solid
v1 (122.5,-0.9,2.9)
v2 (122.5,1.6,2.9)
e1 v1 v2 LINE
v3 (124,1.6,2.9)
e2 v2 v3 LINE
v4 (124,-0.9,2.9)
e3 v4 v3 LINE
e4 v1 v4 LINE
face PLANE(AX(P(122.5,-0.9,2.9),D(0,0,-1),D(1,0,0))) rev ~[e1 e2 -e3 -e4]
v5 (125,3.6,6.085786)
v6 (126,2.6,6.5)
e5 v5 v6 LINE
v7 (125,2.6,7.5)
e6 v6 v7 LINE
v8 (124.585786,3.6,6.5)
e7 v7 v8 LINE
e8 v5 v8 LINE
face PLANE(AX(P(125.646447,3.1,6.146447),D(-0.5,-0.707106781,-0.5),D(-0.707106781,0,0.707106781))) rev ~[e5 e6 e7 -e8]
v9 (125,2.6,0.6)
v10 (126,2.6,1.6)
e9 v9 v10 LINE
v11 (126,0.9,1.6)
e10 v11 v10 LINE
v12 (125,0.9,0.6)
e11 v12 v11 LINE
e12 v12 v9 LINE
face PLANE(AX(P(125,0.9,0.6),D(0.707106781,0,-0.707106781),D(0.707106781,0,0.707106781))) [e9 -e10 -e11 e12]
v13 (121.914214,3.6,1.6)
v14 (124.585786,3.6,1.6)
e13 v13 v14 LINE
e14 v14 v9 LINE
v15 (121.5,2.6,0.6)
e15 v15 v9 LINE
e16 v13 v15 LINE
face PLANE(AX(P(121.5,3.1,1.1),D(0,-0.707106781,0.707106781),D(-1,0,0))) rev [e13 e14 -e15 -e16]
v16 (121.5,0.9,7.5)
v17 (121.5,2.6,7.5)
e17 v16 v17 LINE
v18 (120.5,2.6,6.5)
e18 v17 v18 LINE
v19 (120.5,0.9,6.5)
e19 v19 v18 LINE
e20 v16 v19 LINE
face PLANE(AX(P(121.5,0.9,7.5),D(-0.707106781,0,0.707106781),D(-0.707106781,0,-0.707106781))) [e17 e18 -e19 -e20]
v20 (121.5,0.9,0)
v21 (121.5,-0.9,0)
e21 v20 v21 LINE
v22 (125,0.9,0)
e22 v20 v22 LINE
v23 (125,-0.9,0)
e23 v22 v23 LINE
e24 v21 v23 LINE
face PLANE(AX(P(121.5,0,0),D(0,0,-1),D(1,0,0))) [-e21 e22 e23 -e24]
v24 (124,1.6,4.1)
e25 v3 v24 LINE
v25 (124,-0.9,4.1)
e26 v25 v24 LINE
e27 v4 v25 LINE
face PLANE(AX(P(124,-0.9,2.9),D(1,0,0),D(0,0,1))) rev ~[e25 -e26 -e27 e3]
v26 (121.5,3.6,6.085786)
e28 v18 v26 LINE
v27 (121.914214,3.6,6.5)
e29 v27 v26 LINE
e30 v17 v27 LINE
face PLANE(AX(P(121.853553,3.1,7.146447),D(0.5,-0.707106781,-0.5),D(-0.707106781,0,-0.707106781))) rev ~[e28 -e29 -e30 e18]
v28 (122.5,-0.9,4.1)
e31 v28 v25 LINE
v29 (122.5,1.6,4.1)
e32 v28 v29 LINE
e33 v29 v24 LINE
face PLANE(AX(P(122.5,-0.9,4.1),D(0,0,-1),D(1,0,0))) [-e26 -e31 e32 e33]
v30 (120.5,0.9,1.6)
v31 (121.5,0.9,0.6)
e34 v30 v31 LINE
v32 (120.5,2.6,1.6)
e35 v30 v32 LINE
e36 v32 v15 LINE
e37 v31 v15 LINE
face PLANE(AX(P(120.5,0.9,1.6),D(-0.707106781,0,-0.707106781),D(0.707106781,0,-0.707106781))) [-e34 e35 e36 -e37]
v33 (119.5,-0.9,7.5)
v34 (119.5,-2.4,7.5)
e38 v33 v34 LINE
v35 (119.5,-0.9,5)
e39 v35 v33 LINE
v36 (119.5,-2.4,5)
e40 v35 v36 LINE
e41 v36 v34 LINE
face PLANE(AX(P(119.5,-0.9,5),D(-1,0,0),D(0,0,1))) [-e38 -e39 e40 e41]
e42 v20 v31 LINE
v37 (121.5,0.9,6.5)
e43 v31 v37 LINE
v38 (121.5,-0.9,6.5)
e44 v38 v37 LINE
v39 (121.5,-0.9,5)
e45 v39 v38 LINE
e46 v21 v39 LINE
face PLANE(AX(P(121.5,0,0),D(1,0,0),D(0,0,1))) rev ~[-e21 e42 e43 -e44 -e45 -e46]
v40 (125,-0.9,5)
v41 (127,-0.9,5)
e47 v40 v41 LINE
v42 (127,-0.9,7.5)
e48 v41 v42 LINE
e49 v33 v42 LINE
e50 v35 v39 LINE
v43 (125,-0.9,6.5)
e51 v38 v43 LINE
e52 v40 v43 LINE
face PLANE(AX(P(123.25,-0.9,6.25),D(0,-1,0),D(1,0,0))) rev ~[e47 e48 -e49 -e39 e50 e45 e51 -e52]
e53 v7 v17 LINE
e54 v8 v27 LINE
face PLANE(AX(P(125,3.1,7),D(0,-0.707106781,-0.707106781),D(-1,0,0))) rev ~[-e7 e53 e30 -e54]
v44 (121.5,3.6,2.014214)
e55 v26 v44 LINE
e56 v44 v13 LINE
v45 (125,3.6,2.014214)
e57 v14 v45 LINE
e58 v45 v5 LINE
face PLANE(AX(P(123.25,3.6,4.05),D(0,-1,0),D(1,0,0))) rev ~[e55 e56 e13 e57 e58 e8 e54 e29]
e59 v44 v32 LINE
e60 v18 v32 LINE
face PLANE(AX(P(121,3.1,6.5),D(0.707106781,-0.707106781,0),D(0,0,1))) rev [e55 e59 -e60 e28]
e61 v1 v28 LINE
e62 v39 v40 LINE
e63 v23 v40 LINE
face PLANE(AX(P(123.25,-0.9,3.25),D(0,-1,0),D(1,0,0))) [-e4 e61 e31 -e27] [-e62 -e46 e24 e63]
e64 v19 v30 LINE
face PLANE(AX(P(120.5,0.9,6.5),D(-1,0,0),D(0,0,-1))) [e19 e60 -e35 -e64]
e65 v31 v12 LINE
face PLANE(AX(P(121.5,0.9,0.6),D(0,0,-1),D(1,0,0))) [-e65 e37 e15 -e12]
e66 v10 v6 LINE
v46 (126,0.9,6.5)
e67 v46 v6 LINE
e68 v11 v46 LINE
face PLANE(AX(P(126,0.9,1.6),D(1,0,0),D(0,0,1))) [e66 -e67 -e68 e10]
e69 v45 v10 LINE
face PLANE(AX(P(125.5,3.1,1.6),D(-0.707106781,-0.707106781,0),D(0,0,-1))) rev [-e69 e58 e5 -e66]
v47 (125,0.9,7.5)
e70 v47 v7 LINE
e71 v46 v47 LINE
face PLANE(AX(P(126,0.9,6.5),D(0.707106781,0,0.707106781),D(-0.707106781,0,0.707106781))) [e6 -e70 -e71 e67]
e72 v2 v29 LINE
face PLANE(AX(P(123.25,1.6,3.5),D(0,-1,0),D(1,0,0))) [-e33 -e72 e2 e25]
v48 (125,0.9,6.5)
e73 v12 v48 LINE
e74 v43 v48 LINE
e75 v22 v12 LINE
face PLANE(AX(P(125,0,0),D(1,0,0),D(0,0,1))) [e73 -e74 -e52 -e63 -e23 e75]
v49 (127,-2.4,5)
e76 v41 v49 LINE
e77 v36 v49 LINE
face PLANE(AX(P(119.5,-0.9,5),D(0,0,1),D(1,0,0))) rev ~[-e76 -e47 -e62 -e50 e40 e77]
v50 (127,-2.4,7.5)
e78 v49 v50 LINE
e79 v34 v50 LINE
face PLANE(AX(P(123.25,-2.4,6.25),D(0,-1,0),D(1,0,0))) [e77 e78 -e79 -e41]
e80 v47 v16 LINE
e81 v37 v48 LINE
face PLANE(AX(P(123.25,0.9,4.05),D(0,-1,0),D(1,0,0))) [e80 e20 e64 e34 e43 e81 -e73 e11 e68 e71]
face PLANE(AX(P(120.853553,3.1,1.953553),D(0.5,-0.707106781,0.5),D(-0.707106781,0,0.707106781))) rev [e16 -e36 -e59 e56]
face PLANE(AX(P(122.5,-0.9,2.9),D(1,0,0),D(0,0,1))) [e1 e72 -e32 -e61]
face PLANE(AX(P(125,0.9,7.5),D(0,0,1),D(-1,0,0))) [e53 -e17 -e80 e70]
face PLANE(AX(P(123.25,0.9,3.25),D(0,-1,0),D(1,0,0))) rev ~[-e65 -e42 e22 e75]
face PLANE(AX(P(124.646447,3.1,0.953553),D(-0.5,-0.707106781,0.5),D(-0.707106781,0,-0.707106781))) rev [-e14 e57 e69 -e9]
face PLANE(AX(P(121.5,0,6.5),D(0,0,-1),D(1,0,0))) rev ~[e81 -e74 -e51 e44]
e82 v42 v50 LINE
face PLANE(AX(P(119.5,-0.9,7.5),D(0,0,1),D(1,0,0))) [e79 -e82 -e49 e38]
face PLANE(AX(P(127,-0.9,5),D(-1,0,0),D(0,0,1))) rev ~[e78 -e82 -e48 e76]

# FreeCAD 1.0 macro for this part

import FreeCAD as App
import Part
import Sketcher
from FreeCAD import Vector
Q = App.Units.Quantity


def edges_at(feature, points):
    """Names of the edges that pass closest to the given points."""
    edges = feature.Shape.Edges
    near = lambda p: min(range(len(edges)), key=lambda i: edges[i].distToShape(Part.Vertex(*p))[0])
    return sorted({f"Edge{near(p) + 1}" for p in points})


def add_polygon(sketch, points):
    """Adds a closed chain of lines whose ends are joined by coincident constraints."""
    first, n = sketch.GeometryCount, len(points)
    for a, b in zip(points, points[1:] + points[:1]):
        sketch.addGeometry(Part.LineSegment(App.Vector(*a, 0), App.Vector(*b, 0)), False)
    for i in range(n):
        sketch.addConstraint(Sketcher.Constraint("Coincident", first + i, 2, first + (i + 1) % n, 1))

doc = App.newDocument("Part")
params = doc.addObject("Spreadsheet::Sheet", "Params")
for row, (alias, value) in enumerate([
    ("sketch1_width", "3.5 mm"),
    ("sketch1_height", "6.5 mm"),
    ("pad1_length", "1.8 mm"),
    ("sketch2_width", "7.5 mm"),
    ("sketch2_height", "2.5 mm"),
    ("pad2_length", "1.5 mm"),
    ("sketch3_width", "3.5 mm"),
    ("sketch3_height", "4.9 mm"),
    ("pad3_length", "2.7 mm"),
    ("sketch4_width", "1.5 mm"),
    ("sketch4_height", "1.2 mm"),
    ("pocket1_length", "2.5 mm"),
    ("chamfer_size", "1 mm"),
], start=1):
    params.set(f"A{row}", alias)
    params.set(f"B{row}", "=" + value)
    params.setAlias(f"B{row}", alias)

body = doc.addObject("PartDesign::Body", "Body")

# Sketch on XZ plane
sketch1 = body.newObject("Sketcher::SketchObject", "Sketch")
sketch1.AttachmentSupport = (doc.getObject("XZ_Plane"), [""])
sketch1.MapMode = "FlatFace"
add_polygon(sketch1, [(-1.75, 6.5), (-1.75, 0), (1.75, 0), (1.75, 6.5)])  # lines 0-3
sketch1.addConstraint(Sketcher.Constraint("Vertical", 0))
sketch1.addConstraint(Sketcher.Constraint("Horizontal", 1))
sketch1.addConstraint(Sketcher.Constraint("Vertical", 2))
sketch1.addConstraint(Sketcher.Constraint("Horizontal", 3))
sketch1.addConstraint(Sketcher.Constraint("Symmetric", 0, 2, 1, 2, -1, 1))
sketch1.addConstraint(Sketcher.Constraint("DistanceX", 1, 1, 1, 2, Q("3.5 mm")))
sketch1.addConstraint(Sketcher.Constraint("DistanceY", 0, 2, 0, 1, Q("6.5 mm")))
sketch1.setExpression("Constraints[9]", "Params.sketch1_width")
sketch1.setExpression("Constraints[10]", "Params.sketch1_height")
pad1 = body.newObject("PartDesign::Pad", "Pad")
pad1.Profile = sketch1
pad1.setExpression("Length", "Params.pad1_length")
pad1.Midplane = True

# Sketch on XZ plane
sketch2 = body.newObject("Sketcher::SketchObject", "Sketch001")
sketch2.AttachmentSupport = (doc.getObject("XZ_Plane"), [""])
sketch2.MapMode = "FlatFace"
sketch2.AttachmentOffset = App.Placement(Vector(0, 0, 0.9), App.Rotation())
add_polygon(sketch2, [(-3.75, 7.5), (-3.75, 5), (3.75, 5), (3.75, 7.5)])  # lines 0-3
sketch2.addConstraint(Sketcher.Constraint("Vertical", 0))
sketch2.addConstraint(Sketcher.Constraint("Horizontal", 1))
sketch2.addConstraint(Sketcher.Constraint("Vertical", 2))
sketch2.addConstraint(Sketcher.Constraint("Horizontal", 3))
sketch2.addConstraint(Sketcher.Constraint("DistanceX", 1, 1, 1, 2, Q("7.5 mm")))
sketch2.addConstraint(Sketcher.Constraint("DistanceY", 0, 2, 0, 1, Q("2.5 mm")))
sketch2.addConstraint(Sketcher.Constraint("DistanceY", -1, 1, 0, 2, Q("5 mm")))
sketch2.addConstraint(Sketcher.Constraint("DistanceX", 0, 2, -1, 1, Q("3.75 mm")))
sketch2.setExpression("Constraints[8]", "Params.sketch2_width")
sketch2.setExpression("Constraints[9]", "Params.sketch2_height")
pad2 = body.newObject("PartDesign::Pad", "Pad001")
pad2.Profile = sketch2
pad2.setExpression("Length", "Params.pad2_length")

# Sketch on XZ plane
sketch3 = body.newObject("Sketcher::SketchObject", "Sketch002")
sketch3.AttachmentSupport = (doc.getObject("XZ_Plane"), [""])
sketch3.MapMode = "FlatFace"
sketch3.AttachmentOffset = App.Placement(Vector(0, 0, -0.9), App.Rotation())
add_polygon(sketch3, [(-1.75, 7.5), (1.75, 7.5), (2.75, 6.5), (2.75, 1.6), (1.75, 0.6), (-1.75, 0.6), (-2.75, 1.6), (-2.75, 6.5)])  # lines 0-7
sketch3.addConstraint(Sketcher.Constraint("Horizontal", 0))
sketch3.addConstraint(Sketcher.Constraint("Vertical", 2))
sketch3.addConstraint(Sketcher.Constraint("Horizontal", 4))
sketch3.addConstraint(Sketcher.Constraint("Vertical", 6))
sketch3.addConstraint(Sketcher.Constraint("Symmetric", 2, 2, 5, 2, -2))
sketch3.addConstraint(Sketcher.Constraint("Perpendicular", 1, 3))
sketch3.addConstraint(Sketcher.Constraint("Perpendicular", 3, 5))
sketch3.addConstraint(Sketcher.Constraint("Perpendicular", 5, 7))
sketch3.addConstraint(Sketcher.Constraint("Horizontal", 1, 2, 6, 2))
sketch3.addConstraint(Sketcher.Constraint("Vertical", 0, 2, 3, 2))
sketch3.addConstraint(Sketcher.Constraint("Vertical", 4, 2, 7, 2))
sketch3.addConstraint(Sketcher.Constraint("DistanceX", 0, 1, 0, 2, Q("3.5 mm")))
sketch3.addConstraint(Sketcher.Constraint("DistanceY", 2, 2, 2, 1, Q("4.9 mm")))
sketch3.addConstraint(Sketcher.Constraint("DistanceX", 0, 2, 1, 2, Q("1 mm")))
sketch3.addConstraint(Sketcher.Constraint("DistanceY", -1, 1, 0, 2, Q("7.5 mm")))
sketch3.setExpression("Constraints[19]", "Params.sketch3_width")
sketch3.setExpression("Constraints[20]", "Params.sketch3_height")
pad3 = body.newObject("PartDesign::Pad", "Pad002")
pad3.Profile = sketch3
pad3.setExpression("Length", "Params.pad3_length")
pad3.Reversed = True

# Sketch on XZ plane
sketch4 = body.newObject("Sketcher::SketchObject", "Sketch003")
sketch4.AttachmentSupport = (doc.getObject("XZ_Plane"), [""])
sketch4.MapMode = "FlatFace"
sketch4.AttachmentOffset = App.Placement(Vector(0, 0, 0.9), App.Rotation())
add_polygon(sketch4, [(-0.75, 4.1), (-0.75, 2.9), (0.75, 2.9), (0.75, 4.1)])  # lines 0-3
sketch4.addConstraint(Sketcher.Constraint("Vertical", 0))
sketch4.addConstraint(Sketcher.Constraint("Horizontal", 1))
sketch4.addConstraint(Sketcher.Constraint("Vertical", 2))
sketch4.addConstraint(Sketcher.Constraint("Horizontal", 3))
sketch4.addConstraint(Sketcher.Constraint("DistanceX", 1, 1, 1, 2, Q("1.5 mm")))
sketch4.addConstraint(Sketcher.Constraint("DistanceY", 0, 2, 0, 1, Q("1.2 mm")))
sketch4.addConstraint(Sketcher.Constraint("DistanceY", -1, 1, 0, 2, Q("2.9 mm")))
sketch4.addConstraint(Sketcher.Constraint("DistanceX", 0, 2, -1, 1, Q("0.75 mm")))
sketch4.setExpression("Constraints[8]", "Params.sketch4_width")
sketch4.setExpression("Constraints[9]", "Params.sketch4_height")
pocket1 = body.newObject("PartDesign::Pocket", "Pocket")
pocket1.Profile = sketch4
pocket1.setExpression("Length", "Params.pocket1_length")
doc.recompute()

chamfer = body.newObject("PartDesign::Chamfer", "Chamfer")
chamfer.Base = (pocket1, edges_at(pocket1, [
    (2.75, 3.6, 4.05),
    (2.25, 3.6, 7),
    (0, 3.6, 7.5),
    (-2.25, 3.6, 7),
    (-2.75, 3.6, 4.05),
    (-2.25, 3.6, 1.1),
    (0, 3.6, 0.6),
    (2.25, 3.6, 1.1),
]))
chamfer.setExpression("Size", "Params.chamfer_size")
body2 = doc.addObject("PartDesign::Body", "Body001")
doc.recompute()

body.Placement = App.Placement(Vector(123.25, 0, 0), App.Rotation(Vector(0, 0, 1), 0))
boolean = body2.newObject("PartDesign::Boolean", "Boolean")
boolean.Type = "Fuse"
boolean.addObjects([body])

doc.recompute()
